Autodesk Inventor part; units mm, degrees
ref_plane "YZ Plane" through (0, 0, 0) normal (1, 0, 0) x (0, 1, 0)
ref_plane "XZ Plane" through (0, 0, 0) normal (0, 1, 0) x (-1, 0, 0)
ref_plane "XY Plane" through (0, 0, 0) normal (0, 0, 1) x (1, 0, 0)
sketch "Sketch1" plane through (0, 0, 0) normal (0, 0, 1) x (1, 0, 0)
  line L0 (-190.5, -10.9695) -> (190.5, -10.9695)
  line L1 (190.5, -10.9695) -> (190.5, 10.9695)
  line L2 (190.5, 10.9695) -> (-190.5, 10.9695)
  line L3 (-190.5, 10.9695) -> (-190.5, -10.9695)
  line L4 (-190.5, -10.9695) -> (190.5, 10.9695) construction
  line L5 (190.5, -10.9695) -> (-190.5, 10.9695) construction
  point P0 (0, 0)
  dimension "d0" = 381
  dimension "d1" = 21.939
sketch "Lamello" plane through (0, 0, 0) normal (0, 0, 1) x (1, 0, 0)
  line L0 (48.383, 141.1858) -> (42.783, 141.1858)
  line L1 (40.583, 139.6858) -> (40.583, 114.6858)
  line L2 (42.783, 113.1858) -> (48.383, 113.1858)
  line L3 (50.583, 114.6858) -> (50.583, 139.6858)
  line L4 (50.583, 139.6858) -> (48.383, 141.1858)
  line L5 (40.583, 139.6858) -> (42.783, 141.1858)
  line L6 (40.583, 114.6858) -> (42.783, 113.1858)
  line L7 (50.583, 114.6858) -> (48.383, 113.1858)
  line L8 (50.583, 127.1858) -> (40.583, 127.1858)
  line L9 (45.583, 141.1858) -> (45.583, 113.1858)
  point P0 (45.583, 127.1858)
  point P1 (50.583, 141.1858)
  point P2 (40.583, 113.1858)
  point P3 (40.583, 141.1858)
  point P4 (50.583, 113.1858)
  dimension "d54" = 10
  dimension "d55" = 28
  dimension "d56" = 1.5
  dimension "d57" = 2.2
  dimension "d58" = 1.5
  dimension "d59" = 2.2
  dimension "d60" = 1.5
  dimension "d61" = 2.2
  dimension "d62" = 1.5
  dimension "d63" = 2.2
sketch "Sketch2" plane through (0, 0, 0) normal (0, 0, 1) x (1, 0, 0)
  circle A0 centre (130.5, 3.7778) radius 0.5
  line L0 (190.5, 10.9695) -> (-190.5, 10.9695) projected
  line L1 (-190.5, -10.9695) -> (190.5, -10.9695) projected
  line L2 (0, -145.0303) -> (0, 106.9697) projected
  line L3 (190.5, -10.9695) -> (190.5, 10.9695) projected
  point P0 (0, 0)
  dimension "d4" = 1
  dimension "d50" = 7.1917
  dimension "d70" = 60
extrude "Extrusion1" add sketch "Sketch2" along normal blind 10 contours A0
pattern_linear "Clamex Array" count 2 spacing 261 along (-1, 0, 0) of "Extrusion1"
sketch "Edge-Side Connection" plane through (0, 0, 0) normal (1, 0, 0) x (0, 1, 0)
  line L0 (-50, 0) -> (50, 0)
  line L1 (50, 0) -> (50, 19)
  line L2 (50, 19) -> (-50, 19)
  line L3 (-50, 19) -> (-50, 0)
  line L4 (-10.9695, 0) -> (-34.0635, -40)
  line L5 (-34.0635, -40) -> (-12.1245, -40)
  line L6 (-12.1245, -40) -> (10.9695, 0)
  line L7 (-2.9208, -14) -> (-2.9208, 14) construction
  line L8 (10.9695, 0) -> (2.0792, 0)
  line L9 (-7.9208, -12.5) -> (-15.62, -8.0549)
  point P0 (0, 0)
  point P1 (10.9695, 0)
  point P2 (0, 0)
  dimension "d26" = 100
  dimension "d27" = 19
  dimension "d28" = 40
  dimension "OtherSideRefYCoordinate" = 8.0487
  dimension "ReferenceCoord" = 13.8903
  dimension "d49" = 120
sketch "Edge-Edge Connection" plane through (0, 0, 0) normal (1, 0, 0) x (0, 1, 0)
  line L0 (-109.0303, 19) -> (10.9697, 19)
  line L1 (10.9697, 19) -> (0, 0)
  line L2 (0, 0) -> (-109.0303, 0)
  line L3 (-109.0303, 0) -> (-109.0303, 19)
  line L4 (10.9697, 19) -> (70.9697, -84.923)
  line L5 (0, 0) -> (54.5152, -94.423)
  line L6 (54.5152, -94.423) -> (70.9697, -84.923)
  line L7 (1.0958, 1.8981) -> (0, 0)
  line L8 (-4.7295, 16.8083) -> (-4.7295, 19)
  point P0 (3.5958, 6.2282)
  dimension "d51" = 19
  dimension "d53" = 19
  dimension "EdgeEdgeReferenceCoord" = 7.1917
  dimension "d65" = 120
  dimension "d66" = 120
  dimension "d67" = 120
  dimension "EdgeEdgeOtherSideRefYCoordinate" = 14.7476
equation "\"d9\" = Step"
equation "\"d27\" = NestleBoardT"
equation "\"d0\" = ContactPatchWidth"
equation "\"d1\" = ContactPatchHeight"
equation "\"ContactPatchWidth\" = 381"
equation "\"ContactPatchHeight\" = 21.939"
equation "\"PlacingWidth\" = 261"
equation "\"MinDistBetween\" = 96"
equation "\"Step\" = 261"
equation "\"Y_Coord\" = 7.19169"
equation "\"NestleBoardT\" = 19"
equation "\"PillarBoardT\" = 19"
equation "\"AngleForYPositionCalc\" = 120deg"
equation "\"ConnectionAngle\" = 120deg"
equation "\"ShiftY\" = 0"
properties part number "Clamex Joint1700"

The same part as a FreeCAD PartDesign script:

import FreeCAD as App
import Part
import Sketcher
from FreeCAD import Vector

doc = App.newDocument("Part")
body = doc.addObject("PartDesign::Body", "Body")
body.AllowCompound = True

# Sketch on XY plane
sketch1 = doc.addObject("Sketcher::SketchObject", "Sketch")
body.addObject(sketch1)
sketch1.AttachmentSupport = (doc.XY_Plane, [""])
sketch1.MapMode = "FlatFace"
sketch1.addGeometry(Part.Circle(Vector(130.5, 3.8, 0), Vector(0, 0, 1), 0.5), False)
sketch1.addConstraint([
    Sketcher.Constraint("Diameter", 0, 1.0),
    Sketcher.Constraint("DistanceX", -1, 1, 0, 3, 130.5),
    Sketcher.Constraint("DistanceY", -1, 1, 0, 3, 3.7778),
])
pad1 = doc.addObject("PartDesign::Pad", "Pad")
body.addObject(pad1)
pad1.Profile = sketch1
pad1.Length = 10
doc.recompute()

linearpattern = doc.addObject("PartDesign::LinearPattern", "LinearPattern")
body.addObject(linearpattern)
linearpattern.Originals = [pad1]
linearpattern.Direction = (doc.X_Axis, [""])
linearpattern.Mode = "offset"
linearpattern.Offset = 261
linearpattern.Occurrences = 2
linearpattern.Reversed = True
body.Tip = linearpattern

doc.recompute()
